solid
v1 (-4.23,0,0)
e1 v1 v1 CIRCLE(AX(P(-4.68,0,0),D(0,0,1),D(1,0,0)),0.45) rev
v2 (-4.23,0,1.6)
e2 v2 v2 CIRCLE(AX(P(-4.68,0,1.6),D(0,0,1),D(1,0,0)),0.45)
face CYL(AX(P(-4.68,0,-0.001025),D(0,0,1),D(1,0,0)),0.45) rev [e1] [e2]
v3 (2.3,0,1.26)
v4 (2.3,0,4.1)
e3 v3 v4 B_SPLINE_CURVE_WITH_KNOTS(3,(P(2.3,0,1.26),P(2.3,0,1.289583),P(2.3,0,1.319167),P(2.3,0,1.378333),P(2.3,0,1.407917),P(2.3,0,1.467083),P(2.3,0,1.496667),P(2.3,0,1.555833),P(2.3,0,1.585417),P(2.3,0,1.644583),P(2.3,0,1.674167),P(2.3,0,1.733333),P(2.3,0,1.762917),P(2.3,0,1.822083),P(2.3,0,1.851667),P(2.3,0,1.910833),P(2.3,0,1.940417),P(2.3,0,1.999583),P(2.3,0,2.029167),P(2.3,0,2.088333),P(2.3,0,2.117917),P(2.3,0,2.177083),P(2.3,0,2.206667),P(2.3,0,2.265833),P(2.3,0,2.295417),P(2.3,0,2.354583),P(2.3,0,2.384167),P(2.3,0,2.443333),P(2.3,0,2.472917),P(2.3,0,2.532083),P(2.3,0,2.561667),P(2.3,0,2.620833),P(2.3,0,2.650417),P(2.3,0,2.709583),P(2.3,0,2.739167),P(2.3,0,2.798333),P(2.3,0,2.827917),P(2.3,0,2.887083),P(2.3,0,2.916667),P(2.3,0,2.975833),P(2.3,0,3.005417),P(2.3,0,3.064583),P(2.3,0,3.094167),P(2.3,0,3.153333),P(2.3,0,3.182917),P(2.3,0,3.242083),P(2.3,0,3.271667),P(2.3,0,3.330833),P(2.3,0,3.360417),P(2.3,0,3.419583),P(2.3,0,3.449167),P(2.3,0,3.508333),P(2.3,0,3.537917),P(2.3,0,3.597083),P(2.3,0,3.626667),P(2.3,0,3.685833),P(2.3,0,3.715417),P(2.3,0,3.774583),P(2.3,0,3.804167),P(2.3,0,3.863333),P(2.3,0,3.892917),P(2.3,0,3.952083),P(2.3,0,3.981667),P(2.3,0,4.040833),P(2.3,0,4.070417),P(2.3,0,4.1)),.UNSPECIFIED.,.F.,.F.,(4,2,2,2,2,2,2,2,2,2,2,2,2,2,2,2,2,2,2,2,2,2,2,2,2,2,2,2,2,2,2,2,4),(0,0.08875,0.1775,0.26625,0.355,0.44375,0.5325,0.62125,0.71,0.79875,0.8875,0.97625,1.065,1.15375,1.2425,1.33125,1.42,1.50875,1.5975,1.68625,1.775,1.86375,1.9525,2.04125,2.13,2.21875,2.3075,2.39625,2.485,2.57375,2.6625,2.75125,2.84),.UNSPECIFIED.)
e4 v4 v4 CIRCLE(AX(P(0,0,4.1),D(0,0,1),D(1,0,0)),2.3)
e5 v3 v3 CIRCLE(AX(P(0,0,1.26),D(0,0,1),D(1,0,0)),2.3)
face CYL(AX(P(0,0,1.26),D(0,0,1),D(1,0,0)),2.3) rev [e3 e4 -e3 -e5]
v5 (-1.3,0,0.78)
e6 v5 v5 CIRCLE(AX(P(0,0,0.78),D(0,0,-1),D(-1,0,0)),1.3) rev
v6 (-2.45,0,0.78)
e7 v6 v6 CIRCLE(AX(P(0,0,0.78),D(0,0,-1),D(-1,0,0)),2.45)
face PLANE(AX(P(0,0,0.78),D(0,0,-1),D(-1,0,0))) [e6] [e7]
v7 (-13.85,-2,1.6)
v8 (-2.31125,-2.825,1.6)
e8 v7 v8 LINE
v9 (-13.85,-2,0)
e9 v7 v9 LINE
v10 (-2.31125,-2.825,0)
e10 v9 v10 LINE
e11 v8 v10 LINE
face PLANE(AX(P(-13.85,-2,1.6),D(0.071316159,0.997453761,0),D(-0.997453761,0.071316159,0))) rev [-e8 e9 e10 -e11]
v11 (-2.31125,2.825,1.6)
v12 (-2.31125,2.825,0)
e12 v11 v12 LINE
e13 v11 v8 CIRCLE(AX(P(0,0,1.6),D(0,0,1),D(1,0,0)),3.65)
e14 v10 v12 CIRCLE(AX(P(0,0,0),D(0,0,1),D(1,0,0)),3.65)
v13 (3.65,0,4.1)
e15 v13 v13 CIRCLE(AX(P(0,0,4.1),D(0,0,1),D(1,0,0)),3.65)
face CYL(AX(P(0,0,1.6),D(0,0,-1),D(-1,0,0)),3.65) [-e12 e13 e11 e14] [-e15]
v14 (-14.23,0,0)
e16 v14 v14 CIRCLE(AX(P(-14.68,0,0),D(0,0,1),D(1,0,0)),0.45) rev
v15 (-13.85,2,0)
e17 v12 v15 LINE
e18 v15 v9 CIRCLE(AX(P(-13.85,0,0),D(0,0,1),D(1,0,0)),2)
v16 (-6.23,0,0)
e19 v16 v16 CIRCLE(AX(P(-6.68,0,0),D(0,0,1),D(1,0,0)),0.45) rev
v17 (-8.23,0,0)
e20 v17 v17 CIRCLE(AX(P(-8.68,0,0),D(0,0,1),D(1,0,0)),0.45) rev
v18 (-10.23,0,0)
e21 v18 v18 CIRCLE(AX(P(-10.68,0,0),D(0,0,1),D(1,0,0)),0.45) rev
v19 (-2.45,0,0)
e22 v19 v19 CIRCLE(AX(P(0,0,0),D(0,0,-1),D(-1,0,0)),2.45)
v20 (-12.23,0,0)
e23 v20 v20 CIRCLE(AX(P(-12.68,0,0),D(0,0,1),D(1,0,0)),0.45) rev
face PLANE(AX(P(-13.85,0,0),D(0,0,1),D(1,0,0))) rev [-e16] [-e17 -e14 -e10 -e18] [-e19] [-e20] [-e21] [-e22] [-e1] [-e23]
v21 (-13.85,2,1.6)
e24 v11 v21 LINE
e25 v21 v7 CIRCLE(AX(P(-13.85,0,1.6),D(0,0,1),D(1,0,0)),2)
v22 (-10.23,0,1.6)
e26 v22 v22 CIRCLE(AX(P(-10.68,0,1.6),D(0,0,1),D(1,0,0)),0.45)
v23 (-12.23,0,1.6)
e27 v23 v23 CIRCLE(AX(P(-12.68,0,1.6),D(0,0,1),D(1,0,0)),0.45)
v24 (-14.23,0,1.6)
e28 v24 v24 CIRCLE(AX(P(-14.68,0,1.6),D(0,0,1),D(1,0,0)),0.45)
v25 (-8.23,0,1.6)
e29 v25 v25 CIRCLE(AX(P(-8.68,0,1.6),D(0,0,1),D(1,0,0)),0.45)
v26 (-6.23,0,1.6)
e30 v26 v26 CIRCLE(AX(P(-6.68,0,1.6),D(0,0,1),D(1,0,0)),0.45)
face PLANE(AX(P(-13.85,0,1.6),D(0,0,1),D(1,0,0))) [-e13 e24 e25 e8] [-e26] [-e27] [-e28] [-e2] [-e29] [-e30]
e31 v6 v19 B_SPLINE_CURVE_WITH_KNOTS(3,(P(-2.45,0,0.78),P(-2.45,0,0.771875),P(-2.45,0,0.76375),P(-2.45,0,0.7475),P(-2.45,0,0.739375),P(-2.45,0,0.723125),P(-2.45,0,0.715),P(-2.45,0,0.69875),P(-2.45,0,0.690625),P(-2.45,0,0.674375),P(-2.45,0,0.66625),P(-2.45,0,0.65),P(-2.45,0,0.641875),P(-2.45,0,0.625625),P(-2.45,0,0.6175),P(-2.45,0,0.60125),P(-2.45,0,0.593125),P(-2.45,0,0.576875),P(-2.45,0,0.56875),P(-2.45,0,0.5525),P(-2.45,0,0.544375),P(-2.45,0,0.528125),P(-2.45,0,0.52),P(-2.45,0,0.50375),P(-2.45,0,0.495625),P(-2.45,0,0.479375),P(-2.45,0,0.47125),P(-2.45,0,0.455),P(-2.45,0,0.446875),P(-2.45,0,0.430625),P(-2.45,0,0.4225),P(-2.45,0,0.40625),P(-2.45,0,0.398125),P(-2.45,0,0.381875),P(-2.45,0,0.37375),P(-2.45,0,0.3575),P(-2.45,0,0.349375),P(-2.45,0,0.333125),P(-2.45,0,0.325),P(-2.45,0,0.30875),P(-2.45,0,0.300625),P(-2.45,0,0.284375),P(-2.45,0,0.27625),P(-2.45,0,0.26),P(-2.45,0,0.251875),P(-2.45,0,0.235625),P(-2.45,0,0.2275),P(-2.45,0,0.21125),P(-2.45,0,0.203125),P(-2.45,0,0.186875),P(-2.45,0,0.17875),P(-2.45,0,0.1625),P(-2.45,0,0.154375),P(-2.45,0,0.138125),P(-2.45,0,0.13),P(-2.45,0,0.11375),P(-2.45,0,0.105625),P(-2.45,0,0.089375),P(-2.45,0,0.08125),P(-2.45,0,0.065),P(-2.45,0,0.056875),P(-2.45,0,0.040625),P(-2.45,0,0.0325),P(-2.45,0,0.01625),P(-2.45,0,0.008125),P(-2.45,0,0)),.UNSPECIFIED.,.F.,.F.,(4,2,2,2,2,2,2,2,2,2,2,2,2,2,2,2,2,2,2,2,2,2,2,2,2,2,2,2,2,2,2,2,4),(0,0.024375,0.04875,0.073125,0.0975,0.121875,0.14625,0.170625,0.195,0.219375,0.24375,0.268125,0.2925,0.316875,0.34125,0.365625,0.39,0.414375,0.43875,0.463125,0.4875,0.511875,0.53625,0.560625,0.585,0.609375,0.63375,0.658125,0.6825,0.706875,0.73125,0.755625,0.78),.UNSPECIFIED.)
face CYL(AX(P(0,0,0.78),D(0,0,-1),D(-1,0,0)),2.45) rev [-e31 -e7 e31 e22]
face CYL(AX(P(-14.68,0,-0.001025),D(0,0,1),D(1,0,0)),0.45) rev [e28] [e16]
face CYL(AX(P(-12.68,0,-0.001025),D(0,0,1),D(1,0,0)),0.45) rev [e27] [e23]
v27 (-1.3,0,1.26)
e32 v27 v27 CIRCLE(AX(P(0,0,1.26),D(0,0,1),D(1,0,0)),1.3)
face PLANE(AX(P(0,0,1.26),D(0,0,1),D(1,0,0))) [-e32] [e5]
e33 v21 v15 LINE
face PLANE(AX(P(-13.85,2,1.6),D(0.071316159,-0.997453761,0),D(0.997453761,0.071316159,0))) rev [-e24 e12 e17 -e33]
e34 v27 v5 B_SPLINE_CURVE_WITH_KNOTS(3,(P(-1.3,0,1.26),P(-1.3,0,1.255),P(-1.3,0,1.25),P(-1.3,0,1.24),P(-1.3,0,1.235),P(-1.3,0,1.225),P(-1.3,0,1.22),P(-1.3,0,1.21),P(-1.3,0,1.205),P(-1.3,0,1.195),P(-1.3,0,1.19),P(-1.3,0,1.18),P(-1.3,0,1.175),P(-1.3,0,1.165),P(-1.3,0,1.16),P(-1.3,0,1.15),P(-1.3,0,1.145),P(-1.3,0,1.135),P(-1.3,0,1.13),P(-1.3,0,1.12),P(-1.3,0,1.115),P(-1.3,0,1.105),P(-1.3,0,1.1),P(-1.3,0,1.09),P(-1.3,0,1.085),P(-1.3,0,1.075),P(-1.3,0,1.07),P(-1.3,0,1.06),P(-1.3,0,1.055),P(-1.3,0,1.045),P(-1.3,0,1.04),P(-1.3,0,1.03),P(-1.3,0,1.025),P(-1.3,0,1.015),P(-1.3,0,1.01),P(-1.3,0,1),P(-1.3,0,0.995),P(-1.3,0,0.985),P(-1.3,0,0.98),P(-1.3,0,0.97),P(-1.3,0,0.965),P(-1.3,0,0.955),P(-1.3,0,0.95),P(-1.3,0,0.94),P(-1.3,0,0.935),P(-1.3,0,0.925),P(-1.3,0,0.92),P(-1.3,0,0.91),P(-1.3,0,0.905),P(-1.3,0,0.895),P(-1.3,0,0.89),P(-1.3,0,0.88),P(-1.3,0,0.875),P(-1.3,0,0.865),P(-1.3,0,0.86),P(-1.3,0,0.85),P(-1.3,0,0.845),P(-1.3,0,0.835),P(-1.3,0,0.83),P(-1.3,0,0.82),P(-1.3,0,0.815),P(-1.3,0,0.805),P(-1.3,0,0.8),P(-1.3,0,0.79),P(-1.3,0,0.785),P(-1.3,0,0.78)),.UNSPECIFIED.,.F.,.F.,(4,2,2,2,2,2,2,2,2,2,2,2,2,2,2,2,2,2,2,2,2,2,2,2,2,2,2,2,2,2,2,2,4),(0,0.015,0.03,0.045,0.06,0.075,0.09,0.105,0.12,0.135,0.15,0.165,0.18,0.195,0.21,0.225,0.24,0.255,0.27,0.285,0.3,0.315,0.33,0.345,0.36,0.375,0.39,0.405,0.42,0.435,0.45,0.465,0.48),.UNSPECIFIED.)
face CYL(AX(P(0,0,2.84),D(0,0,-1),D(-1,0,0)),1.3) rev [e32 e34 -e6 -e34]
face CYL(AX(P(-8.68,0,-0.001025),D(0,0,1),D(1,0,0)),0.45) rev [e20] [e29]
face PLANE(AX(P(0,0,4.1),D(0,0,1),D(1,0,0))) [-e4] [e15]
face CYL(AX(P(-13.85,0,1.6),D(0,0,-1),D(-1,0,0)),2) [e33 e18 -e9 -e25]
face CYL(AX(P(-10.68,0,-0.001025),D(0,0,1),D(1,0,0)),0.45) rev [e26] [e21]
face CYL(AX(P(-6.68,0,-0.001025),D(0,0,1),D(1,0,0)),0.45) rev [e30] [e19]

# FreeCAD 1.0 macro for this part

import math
import FreeCAD as App
import Part
import Sketcher

V = App.Vector
Q = App.Units.Quantity

doc = App.newDocument("Part")
body = doc.addObject("PartDesign::Body", "Body")

# Sketch on XY plane
sketch1 = body.newObject("Sketcher::SketchObject", "Sketch")
sketch1.AttachmentSupport = (doc.getObject("XY_Plane"), [""])
sketch1.MapMode = "FlatFace"
sketch1.addGeometry(Part.LineSegment(V(-2.3, 2.8, 0), V(-13.8, 2, 0)), False)
sketch1.addGeometry(Part.ArcOfCircle(Part.Circle(V(-13.8, 0, 0), V(0, 0, 1), 2), math.radians(90), math.radians(270)), False)
sketch1.addGeometry(Part.LineSegment(V(-13.8, -2, 0), V(-2.3, -2.8, 0)), False)
sketch1.addGeometry(Part.ArcOfCircle(Part.Circle(V(0, 0, 0), V(0, 0, 1), 3.6), math.radians(-129), math.radians(129)), False)
sketch1.addConstraint(Sketcher.Constraint("Coincident", 0, 2, 1, 1))
sketch1.addConstraint(Sketcher.Constraint("Coincident", 1, 2, 2, 1))
sketch1.addConstraint(Sketcher.Constraint("Coincident", 2, 2, 3, 1))
sketch1.addConstraint(Sketcher.Constraint("Coincident", 3, 2, 0, 1))
sketch1.addConstraint(Sketcher.Constraint("Coincident", 3, 3, -1, 1))
sketch1.addConstraint(Sketcher.Constraint("Symmetric", 0, 2, 1, 2, -1))
sketch1.addConstraint(Sketcher.Constraint("Vertical", 1, 3, 0, 2))
sketch1.addConstraint(Sketcher.Constraint("Vertical", 2, 2, 3, 2))
sketch1.addConstraint(Sketcher.Constraint("Radius", 1, Q("2 mm")))
sketch1.addConstraint(Sketcher.Constraint("Radius", 3, Q("3.65 mm")))
sketch1.addConstraint(Sketcher.Constraint("DistanceX", 1, 3, -1, 1, Q("13.85 mm")))
sketch1.addConstraint(Sketcher.Constraint("DistanceY", 2, 2, 3, 2, Q("5.65 mm")))
pad1 = body.newObject("PartDesign::Pad", "Pad")
pad1.Profile = sketch1
pad1.Length = 1.6

# Sketch on XY plane
sketch2 = body.newObject("Sketcher::SketchObject", "Sketch001")
sketch2.AttachmentSupport = (doc.getObject("XY_Plane"), [""])
sketch2.MapMode = "FlatFace"
sketch2.AttachmentOffset = App.Placement(V(0, 0, 1.6), App.Rotation())
sketch2.addGeometry(Part.Circle(V(0, 0, 0), V(0, 0, 1), 3.6), False)
sketch2.addConstraint(Sketcher.Constraint("Coincident", 0, 3, -1, 1))
sketch2.addConstraint(Sketcher.Constraint("Diameter", 0, Q("7.3 mm")))
pad2 = body.newObject("PartDesign::Pad", "Pad001")
pad2.Profile = sketch2
pad2.Length = 2.5

# Sketch on XY plane
sketch3 = body.newObject("Sketcher::SketchObject", "Sketch002")
sketch3.AttachmentSupport = (doc.getObject("XY_Plane"), [""])
sketch3.MapMode = "FlatFace"
sketch3.AttachmentOffset = App.Placement(V(0, 0, 4.1), App.Rotation())
sketch3.addGeometry(Part.Circle(V(0, 0, 0), V(0, 0, 1), 2.3), False)
sketch3.addConstraint(Sketcher.Constraint("Coincident", 0, 3, -1, 1))
sketch3.addConstraint(Sketcher.Constraint("Diameter", 0, Q("4.6 mm")))
pocket1 = body.newObject("PartDesign::Pocket", "Pocket")
pocket1.Profile = sketch3
pocket1.Length = 2.84

# Sketch on XY plane
sketch4 = body.newObject("Sketcher::SketchObject", "Sketch003")
sketch4.AttachmentSupport = (doc.getObject("XY_Plane"), [""])
sketch4.MapMode = "FlatFace"
sketch4.AttachmentOffset = App.Placement(V(0, 0, 1.6), App.Rotation())
sketch4.addGeometry(Part.Circle(V(-4.68, 0, 0), V(0, 0, 1), 0.45), False)
sketch4.addConstraint(Sketcher.Constraint("PointOnObject", 0, 3, -1))
sketch4.addConstraint(Sketcher.Constraint("Diameter", 0, Q("0.9 mm")))
sketch4.addConstraint(Sketcher.Constraint("DistanceX", 0, 3, -1, 1, Q("4.68 mm")))
pocket2 = body.newObject("PartDesign::Pocket", "Pocket001")
pocket2.Profile = sketch4
pocket2.Type = "UpToFirst"

# Sketch on XY plane
sketch5 = body.newObject("Sketcher::SketchObject", "Sketch004")
sketch5.AttachmentSupport = (doc.getObject("XY_Plane"), [""])
sketch5.MapMode = "FlatFace"
sketch5.AttachmentOffset = App.Placement(V(0, 0, 1.6), App.Rotation())
sketch5.addGeometry(Part.Circle(V(-6.68, 0, 0), V(0, 0, 1), 0.45), False)
sketch5.addConstraint(Sketcher.Constraint("PointOnObject", 0, 3, -1))
sketch5.addConstraint(Sketcher.Constraint("Diameter", 0, Q("0.9 mm")))
sketch5.addConstraint(Sketcher.Constraint("DistanceX", 0, 3, -1, 1, Q("6.68 mm")))
pocket3 = body.newObject("PartDesign::Pocket", "Pocket002")
pocket3.Profile = sketch5
pocket3.Type = "UpToFirst"

# Sketch on XY plane
sketch6 = body.newObject("Sketcher::SketchObject", "Sketch005")
sketch6.AttachmentSupport = (doc.getObject("XY_Plane"), [""])
sketch6.MapMode = "FlatFace"
sketch6.AttachmentOffset = App.Placement(V(0, 0, 1.6), App.Rotation())
sketch6.addGeometry(Part.Circle(V(-8.68, 0, 0), V(0, 0, 1), 0.45), False)
sketch6.addConstraint(Sketcher.Constraint("PointOnObject", 0, 3, -1))
sketch6.addConstraint(Sketcher.Constraint("Diameter", 0, Q("0.9 mm")))
sketch6.addConstraint(Sketcher.Constraint("DistanceX", 0, 3, -1, 1, Q("8.68 mm")))
pocket4 = body.newObject("PartDesign::Pocket", "Pocket003")
pocket4.Profile = sketch6
pocket4.Type = "UpToFirst"

# Sketch on XY plane
sketch7 = body.newObject("Sketcher::SketchObject", "Sketch006")
sketch7.AttachmentSupport = (doc.getObject("XY_Plane"), [""])
sketch7.MapMode = "FlatFace"
sketch7.AttachmentOffset = App.Placement(V(0, 0, 1.6), App.Rotation())
sketch7.addGeometry(Part.Circle(V(-10.68, 0, 0), V(0, 0, 1), 0.45), False)
sketch7.addConstraint(Sketcher.Constraint("PointOnObject", 0, 3, -1))
sketch7.addConstraint(Sketcher.Constraint("Diameter", 0, Q("0.9 mm")))
sketch7.addConstraint(Sketcher.Constraint("DistanceX", 0, 3, -1, 1, Q("10.68 mm")))
pocket5 = body.newObject("PartDesign::Pocket", "Pocket004")
pocket5.Profile = sketch7
pocket5.Type = "UpToFirst"

# Sketch on XY plane
sketch8 = body.newObject("Sketcher::SketchObject", "Sketch007")
sketch8.AttachmentSupport = (doc.getObject("XY_Plane"), [""])
sketch8.MapMode = "FlatFace"
sketch8.AttachmentOffset = App.Placement(V(0, 0, 1.6), App.Rotation())
sketch8.addGeometry(Part.Circle(V(-12.68, 0, 0), V(0, 0, 1), 0.45), False)
sketch8.addConstraint(Sketcher.Constraint("PointOnObject", 0, 3, -1))
sketch8.addConstraint(Sketcher.Constraint("Diameter", 0, Q("0.9 mm")))
sketch8.addConstraint(Sketcher.Constraint("DistanceX", 0, 3, -1, 1, Q("12.68 mm")))
pocket6 = body.newObject("PartDesign::Pocket", "Pocket005")
pocket6.Profile = sketch8
pocket6.Type = "UpToFirst"

# Sketch on XY plane
sketch9 = body.newObject("Sketcher::SketchObject", "Sketch008")
sketch9.AttachmentSupport = (doc.getObject("XY_Plane"), [""])
sketch9.MapMode = "FlatFace"
sketch9.AttachmentOffset = App.Placement(V(0, 0, 1.6), App.Rotation())
sketch9.addGeometry(Part.Circle(V(-14.68, 0, 0), V(0, 0, 1), 0.45), False)
sketch9.addConstraint(Sketcher.Constraint("PointOnObject", 0, 3, -1))
sketch9.addConstraint(Sketcher.Constraint("Diameter", 0, Q("0.9 mm")))
sketch9.addConstraint(Sketcher.Constraint("DistanceX", 0, 3, -1, 1, Q("14.68 mm")))
pocket7 = body.newObject("PartDesign::Pocket", "Pocket006")
pocket7.Profile = sketch9
pocket7.Type = "UpToFirst"

# Sketch on XY plane
sketch10 = body.newObject("Sketcher::SketchObject", "Sketch009")
sketch10.AttachmentSupport = (doc.getObject("XY_Plane"), [""])
sketch10.MapMode = "FlatFace"
sketch10.addGeometry(Part.Circle(V(0, 0, 0), V(0, 0, 1), 1.3), False)
sketch10.addConstraint(Sketcher.Constraint("Coincident", 0, 3, -1, 1))
sketch10.addConstraint(Sketcher.Constraint("Diameter", 0, Q("2.6 mm")))
pocket8 = body.newObject("PartDesign::Pocket", "Pocket007")
pocket8.Profile = sketch10
pocket8.Length = 2.84
pocket8.Reversed = True

# Sketch on XY plane
sketch11 = body.newObject("Sketcher::SketchObject", "Sketch010")
sketch11.AttachmentSupport = (doc.getObject("XY_Plane"), [""])
sketch11.MapMode = "FlatFace"
sketch11.addGeometry(Part.Circle(V(0, 0, 0), V(0, 0, 1), 2.5), False)
sketch11.addConstraint(Sketcher.Constraint("Coincident", 0, 3, -1, 1))
sketch11.addConstraint(Sketcher.Constraint("Diameter", 0, Q("4.9 mm")))
pocket9 = body.newObject("PartDesign::Pocket", "Pocket008")
pocket9.Profile = sketch11
pocket9.Length = 0.78
pocket9.Reversed = True

doc.recompute()
